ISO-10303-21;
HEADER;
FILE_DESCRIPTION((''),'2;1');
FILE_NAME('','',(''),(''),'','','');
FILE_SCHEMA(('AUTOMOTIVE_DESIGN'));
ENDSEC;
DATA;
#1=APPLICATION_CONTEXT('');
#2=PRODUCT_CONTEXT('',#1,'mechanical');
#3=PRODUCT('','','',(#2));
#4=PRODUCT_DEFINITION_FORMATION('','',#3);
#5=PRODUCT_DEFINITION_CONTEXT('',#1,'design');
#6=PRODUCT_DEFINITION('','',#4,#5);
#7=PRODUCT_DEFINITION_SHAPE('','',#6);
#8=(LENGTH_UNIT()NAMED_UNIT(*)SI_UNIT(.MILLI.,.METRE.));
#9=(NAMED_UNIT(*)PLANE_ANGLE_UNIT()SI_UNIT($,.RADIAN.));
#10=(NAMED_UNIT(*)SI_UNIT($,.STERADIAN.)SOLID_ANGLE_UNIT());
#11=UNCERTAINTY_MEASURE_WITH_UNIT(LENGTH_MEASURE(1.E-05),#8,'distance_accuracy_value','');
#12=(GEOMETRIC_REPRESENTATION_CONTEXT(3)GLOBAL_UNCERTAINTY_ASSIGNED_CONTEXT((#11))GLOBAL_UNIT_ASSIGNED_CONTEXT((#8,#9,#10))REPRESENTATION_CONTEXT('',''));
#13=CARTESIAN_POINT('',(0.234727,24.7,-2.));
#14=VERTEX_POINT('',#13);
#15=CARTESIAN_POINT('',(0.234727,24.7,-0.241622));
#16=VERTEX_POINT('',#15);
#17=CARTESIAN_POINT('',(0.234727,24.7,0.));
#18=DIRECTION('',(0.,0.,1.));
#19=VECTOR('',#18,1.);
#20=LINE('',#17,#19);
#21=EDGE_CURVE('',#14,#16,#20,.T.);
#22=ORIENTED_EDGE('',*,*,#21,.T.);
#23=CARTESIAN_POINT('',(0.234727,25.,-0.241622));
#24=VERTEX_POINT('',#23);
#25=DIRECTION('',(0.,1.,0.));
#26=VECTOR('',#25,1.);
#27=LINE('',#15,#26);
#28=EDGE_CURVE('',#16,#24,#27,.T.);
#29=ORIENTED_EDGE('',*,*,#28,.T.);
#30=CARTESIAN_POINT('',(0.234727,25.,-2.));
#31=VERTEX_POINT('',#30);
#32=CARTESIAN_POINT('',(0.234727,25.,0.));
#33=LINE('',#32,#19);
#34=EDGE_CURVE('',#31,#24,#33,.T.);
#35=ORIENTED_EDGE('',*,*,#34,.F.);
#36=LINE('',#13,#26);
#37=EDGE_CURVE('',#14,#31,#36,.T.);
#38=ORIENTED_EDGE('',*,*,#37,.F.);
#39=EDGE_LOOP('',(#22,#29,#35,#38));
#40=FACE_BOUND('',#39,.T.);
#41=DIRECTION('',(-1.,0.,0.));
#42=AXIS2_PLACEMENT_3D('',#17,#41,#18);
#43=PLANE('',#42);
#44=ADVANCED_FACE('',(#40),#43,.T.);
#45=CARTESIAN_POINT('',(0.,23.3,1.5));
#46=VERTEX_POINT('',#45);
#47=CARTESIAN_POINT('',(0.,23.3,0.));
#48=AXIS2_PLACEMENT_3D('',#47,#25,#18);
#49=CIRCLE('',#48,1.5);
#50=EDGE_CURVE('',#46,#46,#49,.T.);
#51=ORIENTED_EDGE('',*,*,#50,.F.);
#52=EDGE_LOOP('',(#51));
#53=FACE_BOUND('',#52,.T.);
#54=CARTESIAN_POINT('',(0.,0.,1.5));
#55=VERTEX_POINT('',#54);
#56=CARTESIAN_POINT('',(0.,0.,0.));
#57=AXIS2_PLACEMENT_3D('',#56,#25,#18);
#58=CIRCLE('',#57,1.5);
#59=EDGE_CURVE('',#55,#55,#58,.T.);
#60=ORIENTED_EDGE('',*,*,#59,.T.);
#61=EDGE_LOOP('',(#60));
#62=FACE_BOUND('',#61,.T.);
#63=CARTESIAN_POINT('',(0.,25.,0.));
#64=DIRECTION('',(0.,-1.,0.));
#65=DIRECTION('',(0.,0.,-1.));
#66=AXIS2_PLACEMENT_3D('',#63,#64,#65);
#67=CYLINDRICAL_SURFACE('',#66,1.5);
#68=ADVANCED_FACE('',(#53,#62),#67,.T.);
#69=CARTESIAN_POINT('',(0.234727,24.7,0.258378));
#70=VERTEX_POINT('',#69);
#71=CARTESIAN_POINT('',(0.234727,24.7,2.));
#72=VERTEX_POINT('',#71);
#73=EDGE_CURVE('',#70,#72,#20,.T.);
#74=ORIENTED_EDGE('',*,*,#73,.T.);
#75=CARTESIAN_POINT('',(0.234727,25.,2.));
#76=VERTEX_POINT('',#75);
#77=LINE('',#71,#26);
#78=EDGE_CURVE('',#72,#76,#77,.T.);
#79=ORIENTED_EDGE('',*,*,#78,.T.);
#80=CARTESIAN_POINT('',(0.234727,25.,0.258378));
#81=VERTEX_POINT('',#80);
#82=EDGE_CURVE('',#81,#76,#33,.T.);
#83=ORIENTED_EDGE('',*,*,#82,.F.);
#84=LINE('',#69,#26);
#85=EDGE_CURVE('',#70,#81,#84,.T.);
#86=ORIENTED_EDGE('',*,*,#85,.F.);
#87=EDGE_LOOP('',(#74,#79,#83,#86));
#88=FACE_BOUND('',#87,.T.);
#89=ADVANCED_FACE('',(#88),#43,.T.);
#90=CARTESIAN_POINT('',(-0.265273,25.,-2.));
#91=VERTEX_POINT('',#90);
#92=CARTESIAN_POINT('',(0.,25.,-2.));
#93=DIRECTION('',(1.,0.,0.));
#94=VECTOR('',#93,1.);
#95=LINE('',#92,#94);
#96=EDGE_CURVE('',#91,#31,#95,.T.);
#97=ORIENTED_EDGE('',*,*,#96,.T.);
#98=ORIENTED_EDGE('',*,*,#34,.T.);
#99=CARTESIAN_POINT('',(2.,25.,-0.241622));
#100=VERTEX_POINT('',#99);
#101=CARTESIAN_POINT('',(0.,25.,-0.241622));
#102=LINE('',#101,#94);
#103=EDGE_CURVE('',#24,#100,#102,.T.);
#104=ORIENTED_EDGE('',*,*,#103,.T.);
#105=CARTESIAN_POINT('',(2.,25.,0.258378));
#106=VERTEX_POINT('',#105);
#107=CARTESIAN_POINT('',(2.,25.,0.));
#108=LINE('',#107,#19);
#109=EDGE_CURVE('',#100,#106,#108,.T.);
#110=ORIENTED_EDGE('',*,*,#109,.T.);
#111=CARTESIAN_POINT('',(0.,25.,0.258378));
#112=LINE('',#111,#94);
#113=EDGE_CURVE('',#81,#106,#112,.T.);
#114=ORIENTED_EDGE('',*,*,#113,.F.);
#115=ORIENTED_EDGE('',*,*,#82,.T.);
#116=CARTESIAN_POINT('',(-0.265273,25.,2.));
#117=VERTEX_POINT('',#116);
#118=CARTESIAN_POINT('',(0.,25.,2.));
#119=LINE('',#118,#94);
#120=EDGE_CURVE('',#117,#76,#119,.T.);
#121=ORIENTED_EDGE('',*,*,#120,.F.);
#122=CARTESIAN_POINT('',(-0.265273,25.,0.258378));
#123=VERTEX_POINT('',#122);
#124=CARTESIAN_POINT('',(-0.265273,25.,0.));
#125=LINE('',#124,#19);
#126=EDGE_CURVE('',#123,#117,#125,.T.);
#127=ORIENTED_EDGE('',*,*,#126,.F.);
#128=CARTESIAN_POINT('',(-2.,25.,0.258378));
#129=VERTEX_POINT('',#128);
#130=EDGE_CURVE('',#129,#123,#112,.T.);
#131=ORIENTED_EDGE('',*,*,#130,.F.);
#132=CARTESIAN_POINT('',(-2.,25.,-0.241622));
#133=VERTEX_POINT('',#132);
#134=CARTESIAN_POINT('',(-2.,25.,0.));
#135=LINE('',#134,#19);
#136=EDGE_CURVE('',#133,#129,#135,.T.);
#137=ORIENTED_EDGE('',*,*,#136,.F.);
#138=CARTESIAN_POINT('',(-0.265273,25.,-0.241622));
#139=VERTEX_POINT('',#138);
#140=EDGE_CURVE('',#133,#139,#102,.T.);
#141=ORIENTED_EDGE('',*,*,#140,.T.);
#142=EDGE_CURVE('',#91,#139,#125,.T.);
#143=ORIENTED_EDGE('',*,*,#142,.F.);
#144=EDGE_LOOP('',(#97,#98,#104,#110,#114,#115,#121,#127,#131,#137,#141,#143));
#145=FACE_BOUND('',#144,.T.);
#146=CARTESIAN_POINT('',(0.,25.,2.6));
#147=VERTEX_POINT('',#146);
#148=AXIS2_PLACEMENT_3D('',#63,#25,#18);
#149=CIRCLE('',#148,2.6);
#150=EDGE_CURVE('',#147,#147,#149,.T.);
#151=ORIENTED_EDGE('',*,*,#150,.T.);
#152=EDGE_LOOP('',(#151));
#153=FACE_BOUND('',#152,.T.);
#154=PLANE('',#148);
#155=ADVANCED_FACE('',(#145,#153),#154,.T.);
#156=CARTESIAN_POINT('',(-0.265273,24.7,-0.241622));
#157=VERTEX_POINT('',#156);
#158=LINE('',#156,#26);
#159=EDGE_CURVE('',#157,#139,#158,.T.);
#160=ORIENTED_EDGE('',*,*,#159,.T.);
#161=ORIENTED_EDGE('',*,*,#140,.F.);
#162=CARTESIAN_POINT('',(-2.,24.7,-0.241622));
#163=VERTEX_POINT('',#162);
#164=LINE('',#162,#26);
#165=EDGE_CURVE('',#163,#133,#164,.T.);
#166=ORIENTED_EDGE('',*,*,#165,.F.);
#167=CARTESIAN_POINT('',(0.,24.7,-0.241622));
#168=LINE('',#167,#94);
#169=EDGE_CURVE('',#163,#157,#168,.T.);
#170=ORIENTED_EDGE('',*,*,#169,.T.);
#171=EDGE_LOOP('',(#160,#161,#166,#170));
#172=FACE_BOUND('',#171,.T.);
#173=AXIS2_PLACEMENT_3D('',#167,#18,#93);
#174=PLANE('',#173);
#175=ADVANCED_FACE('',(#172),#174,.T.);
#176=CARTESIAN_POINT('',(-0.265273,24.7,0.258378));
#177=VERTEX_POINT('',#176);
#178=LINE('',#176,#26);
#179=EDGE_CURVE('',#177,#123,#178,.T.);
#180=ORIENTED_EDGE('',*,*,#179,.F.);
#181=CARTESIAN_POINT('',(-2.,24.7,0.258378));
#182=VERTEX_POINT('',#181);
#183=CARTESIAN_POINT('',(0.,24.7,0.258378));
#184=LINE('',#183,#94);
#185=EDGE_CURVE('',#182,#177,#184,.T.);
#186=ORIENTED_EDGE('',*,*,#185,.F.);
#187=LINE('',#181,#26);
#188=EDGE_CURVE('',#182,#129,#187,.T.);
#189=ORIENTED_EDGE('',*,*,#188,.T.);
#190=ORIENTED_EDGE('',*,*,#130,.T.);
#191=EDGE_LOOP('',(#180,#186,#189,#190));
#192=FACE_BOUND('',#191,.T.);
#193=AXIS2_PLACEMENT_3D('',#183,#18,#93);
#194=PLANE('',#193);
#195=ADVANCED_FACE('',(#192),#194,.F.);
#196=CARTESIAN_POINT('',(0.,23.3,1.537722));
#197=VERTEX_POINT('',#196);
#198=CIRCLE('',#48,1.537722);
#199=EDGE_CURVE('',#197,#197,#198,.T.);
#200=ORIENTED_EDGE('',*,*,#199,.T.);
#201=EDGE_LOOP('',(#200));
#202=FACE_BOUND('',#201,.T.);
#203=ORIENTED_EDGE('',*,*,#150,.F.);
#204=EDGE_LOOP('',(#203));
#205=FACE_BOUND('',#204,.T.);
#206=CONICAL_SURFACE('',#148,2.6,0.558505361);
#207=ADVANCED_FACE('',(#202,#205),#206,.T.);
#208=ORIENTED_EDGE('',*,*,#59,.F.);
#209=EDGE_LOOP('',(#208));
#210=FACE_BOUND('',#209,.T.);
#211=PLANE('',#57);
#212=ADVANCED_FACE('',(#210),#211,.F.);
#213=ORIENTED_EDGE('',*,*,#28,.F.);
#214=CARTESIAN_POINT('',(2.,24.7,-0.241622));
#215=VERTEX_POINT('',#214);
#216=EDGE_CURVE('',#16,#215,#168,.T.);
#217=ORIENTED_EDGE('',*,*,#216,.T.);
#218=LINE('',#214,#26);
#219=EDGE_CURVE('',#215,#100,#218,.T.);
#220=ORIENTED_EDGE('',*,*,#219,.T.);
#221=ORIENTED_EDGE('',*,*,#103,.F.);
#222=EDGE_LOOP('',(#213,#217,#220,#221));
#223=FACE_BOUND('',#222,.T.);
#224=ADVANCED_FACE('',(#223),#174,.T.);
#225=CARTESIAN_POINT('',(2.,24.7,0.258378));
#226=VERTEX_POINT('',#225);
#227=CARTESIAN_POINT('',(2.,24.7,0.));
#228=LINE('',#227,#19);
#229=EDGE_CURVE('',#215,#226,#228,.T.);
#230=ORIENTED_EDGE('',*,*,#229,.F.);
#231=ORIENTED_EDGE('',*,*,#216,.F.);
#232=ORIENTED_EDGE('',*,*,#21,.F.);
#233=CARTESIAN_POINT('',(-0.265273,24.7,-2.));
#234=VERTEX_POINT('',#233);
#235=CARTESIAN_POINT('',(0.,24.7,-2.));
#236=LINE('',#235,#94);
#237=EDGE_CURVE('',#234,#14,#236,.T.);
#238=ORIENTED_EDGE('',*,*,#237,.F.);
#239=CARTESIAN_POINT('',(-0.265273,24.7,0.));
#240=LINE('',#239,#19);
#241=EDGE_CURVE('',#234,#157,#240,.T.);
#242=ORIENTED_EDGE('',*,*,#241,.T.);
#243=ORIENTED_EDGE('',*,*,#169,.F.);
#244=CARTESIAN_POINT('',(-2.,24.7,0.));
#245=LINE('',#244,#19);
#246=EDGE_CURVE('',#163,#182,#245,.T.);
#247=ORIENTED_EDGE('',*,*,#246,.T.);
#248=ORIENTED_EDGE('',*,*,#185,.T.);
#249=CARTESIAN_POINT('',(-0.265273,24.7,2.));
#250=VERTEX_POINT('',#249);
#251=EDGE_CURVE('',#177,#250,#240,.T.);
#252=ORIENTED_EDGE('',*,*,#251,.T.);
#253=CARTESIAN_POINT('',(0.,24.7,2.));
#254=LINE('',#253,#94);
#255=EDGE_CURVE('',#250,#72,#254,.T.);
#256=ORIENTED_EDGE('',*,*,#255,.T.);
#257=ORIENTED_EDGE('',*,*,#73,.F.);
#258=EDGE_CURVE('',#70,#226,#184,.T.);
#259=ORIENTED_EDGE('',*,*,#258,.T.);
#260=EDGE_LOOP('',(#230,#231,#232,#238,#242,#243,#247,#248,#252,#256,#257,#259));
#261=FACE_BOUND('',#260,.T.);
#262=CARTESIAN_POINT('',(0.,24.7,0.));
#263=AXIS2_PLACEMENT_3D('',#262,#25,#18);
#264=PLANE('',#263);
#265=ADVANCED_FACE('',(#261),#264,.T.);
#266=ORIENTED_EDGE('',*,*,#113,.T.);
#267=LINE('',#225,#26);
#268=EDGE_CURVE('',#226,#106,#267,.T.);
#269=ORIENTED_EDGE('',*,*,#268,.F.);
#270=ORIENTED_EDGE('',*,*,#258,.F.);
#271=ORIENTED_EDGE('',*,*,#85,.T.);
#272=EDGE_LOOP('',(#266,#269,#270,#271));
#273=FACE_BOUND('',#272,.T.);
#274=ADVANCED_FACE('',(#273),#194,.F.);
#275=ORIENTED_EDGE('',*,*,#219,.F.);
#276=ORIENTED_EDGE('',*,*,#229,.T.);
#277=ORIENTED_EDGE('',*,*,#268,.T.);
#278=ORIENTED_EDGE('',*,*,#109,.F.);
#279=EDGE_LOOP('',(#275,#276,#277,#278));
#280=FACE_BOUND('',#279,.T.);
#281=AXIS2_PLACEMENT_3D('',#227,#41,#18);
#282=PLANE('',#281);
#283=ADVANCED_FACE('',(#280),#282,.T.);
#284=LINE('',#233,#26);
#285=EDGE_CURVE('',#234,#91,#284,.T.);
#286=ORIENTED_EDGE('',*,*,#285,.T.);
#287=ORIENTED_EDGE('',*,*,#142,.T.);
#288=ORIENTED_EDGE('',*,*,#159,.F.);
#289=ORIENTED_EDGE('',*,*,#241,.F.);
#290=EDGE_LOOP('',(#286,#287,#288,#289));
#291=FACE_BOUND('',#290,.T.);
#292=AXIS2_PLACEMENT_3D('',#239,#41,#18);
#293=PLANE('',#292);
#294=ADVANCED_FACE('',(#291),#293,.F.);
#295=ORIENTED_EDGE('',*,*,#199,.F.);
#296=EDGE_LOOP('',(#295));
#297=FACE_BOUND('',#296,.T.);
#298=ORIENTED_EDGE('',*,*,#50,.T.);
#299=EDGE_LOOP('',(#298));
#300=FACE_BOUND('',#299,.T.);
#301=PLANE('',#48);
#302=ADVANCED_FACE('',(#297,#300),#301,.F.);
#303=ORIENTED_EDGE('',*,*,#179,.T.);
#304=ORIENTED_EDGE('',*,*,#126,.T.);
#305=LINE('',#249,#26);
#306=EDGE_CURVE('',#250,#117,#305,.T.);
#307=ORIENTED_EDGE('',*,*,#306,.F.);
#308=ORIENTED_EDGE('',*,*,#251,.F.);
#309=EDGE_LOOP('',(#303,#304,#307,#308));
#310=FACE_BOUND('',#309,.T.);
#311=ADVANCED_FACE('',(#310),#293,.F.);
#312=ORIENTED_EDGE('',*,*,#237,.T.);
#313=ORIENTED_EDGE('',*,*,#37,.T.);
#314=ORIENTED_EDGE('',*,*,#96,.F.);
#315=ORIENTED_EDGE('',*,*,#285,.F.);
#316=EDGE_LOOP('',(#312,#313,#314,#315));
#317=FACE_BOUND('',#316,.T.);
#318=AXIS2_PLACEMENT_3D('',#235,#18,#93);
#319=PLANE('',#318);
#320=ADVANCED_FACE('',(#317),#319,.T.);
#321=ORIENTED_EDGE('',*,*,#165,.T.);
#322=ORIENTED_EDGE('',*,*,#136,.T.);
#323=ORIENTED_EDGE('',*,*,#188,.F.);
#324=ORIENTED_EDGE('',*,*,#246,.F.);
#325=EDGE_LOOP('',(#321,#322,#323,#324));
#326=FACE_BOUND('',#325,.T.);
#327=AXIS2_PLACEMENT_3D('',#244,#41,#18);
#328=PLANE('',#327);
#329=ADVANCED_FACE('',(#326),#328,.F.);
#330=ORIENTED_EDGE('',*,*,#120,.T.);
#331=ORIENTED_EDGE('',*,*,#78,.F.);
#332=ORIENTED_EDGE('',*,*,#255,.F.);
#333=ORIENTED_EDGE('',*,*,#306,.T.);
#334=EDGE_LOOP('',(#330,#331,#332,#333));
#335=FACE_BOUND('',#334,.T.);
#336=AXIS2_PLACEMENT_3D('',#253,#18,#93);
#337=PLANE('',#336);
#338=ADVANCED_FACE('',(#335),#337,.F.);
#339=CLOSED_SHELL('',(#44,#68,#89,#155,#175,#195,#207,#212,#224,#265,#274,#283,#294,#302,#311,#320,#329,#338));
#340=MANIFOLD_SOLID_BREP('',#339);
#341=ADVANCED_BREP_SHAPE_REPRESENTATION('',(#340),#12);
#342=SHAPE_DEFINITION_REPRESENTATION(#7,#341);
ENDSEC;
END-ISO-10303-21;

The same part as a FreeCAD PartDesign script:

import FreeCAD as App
import Part
import Sketcher


def add_polygon(sketch, points):
    """Adds a closed chain of lines whose ends are joined by coincident constraints."""
    first, n = sketch.GeometryCount, len(points)
    for a, b in zip(points, points[1:] + points[:1]):
        sketch.addGeometry(Part.LineSegment(App.Vector(*a, 0), App.Vector(*b, 0)), False)
    for i in range(n):
        sketch.addConstraint(Sketcher.Constraint("Coincident", first + i, 2, first + (i + 1) % n, 1))

doc = App.newDocument("Part")
body = doc.addObject("PartDesign::Body", "Body")

# Sketch on XZ plane
sketch1 = doc.addObject("Sketcher::SketchObject", "Sketch")
body.addObject(sketch1)
sketch1.AttachmentSupport = (doc.XZ_Plane, [""])
sketch1.MapMode = "FlatFace"
sketch1.addGeometry(Part.Circle(App.Vector(0, 0, 0), App.Vector(0, 0, 1), 1.5), False)
sketch1.addConstraint([
    Sketcher.Constraint("Coincident", 0, 3, -1, 1),
    Sketcher.Constraint("Diameter", 0, 3.0),
])
pad1 = doc.addObject("PartDesign::Pad", "Pad")
body.addObject(pad1)
pad1.Profile = sketch1
pad1.Length = 25
pad1.Reversed = True

# Sketch on XZ plane
sketch2 = doc.addObject("Sketcher::SketchObject", "Sketch001")
body.addObject(sketch2)
sketch2.AttachmentSupport = (doc.XZ_Plane, [""])
sketch2.MapMode = "FlatFace"
sketch2.AttachmentOffset = App.Placement(App.Vector(0, 0, -25), App.Rotation())
sketch2.addGeometry(Part.Circle(App.Vector(0, 0, 0), App.Vector(0, 0, 1), 2.6), False)
sketch2.addConstraint([
    Sketcher.Constraint("Coincident", 0, 3, -1, 1),
    Sketcher.Constraint("Diameter", 0, 5.2),
])
pad2 = doc.addObject("PartDesign::Pad", "Pad001")
body.addObject(pad2)
pad2.Profile = sketch2
pad2.Length = 1.7
pad2.TaperAngle = -32

# Sketch on XZ plane
sketch3 = doc.addObject("Sketcher::SketchObject", "Sketch002")
body.addObject(sketch3)
sketch3.AttachmentSupport = (doc.XZ_Plane, [""])
sketch3.MapMode = "FlatFace"
sketch3.AttachmentOffset = App.Placement(App.Vector(0, 0, -25), App.Rotation())
add_polygon(sketch3, [(-0.265273, -2), (-0.265273, -0.241622), (-2, -0.241622), (-2, 0.258378), (-0.265273, 0.258378), (-0.265273, 2), (0.234727, 2), (0.234727, 0.258378), (2, 0.258378), (2, -0.241622), (0.234727, -0.241622), (0.234727, -2)])  # lines 0-11
sketch3.addConstraint([
    Sketcher.Constraint("Vertical", 0),
    Sketcher.Constraint("Horizontal", 1),
    Sketcher.Constraint("Vertical", 2),
    Sketcher.Constraint("Horizontal", 3),
    Sketcher.Constraint("Vertical", 4),
    Sketcher.Constraint("Horizontal", 5),
    Sketcher.Constraint("Vertical", 6),
    Sketcher.Constraint("Horizontal", 7),
    Sketcher.Constraint("Vertical", 8),
    Sketcher.Constraint("Horizontal", 9),
    Sketcher.Constraint("Vertical", 10),
    Sketcher.Constraint("Horizontal", 11),
    Sketcher.Constraint("Symmetric", 2, 2, 7, 2, -2),
    Sketcher.Constraint("Symmetric", 5, 2, 10, 2, -1),
    Sketcher.Constraint("Horizontal", 1, 2, 8, 2),
    Sketcher.Constraint("Vertical", 0, 2, 3, 2),
    Sketcher.Constraint("Equal", 11, 2),
    Sketcher.Constraint("DistanceX", 5, 1, 5, 2, 0.5),
    Sketcher.Constraint("DistanceX", 1, 2, -1, 1, 2.0),
    Sketcher.Constraint("DistanceY", -1, 1, 4, 2, 2.0),
    Sketcher.Constraint("DistanceY", 0, 1, 0, 2, 1.758378),
    Sketcher.Constraint("DistanceX", 1, 2, 1, 1, 1.734727),
])
pocket1 = doc.addObject("PartDesign::Pocket", "Pocket")
body.addObject(pocket1)
pocket1.Profile = sketch3
pocket1.Length = 0.3
pocket1.Reversed = True

doc.recompute()
